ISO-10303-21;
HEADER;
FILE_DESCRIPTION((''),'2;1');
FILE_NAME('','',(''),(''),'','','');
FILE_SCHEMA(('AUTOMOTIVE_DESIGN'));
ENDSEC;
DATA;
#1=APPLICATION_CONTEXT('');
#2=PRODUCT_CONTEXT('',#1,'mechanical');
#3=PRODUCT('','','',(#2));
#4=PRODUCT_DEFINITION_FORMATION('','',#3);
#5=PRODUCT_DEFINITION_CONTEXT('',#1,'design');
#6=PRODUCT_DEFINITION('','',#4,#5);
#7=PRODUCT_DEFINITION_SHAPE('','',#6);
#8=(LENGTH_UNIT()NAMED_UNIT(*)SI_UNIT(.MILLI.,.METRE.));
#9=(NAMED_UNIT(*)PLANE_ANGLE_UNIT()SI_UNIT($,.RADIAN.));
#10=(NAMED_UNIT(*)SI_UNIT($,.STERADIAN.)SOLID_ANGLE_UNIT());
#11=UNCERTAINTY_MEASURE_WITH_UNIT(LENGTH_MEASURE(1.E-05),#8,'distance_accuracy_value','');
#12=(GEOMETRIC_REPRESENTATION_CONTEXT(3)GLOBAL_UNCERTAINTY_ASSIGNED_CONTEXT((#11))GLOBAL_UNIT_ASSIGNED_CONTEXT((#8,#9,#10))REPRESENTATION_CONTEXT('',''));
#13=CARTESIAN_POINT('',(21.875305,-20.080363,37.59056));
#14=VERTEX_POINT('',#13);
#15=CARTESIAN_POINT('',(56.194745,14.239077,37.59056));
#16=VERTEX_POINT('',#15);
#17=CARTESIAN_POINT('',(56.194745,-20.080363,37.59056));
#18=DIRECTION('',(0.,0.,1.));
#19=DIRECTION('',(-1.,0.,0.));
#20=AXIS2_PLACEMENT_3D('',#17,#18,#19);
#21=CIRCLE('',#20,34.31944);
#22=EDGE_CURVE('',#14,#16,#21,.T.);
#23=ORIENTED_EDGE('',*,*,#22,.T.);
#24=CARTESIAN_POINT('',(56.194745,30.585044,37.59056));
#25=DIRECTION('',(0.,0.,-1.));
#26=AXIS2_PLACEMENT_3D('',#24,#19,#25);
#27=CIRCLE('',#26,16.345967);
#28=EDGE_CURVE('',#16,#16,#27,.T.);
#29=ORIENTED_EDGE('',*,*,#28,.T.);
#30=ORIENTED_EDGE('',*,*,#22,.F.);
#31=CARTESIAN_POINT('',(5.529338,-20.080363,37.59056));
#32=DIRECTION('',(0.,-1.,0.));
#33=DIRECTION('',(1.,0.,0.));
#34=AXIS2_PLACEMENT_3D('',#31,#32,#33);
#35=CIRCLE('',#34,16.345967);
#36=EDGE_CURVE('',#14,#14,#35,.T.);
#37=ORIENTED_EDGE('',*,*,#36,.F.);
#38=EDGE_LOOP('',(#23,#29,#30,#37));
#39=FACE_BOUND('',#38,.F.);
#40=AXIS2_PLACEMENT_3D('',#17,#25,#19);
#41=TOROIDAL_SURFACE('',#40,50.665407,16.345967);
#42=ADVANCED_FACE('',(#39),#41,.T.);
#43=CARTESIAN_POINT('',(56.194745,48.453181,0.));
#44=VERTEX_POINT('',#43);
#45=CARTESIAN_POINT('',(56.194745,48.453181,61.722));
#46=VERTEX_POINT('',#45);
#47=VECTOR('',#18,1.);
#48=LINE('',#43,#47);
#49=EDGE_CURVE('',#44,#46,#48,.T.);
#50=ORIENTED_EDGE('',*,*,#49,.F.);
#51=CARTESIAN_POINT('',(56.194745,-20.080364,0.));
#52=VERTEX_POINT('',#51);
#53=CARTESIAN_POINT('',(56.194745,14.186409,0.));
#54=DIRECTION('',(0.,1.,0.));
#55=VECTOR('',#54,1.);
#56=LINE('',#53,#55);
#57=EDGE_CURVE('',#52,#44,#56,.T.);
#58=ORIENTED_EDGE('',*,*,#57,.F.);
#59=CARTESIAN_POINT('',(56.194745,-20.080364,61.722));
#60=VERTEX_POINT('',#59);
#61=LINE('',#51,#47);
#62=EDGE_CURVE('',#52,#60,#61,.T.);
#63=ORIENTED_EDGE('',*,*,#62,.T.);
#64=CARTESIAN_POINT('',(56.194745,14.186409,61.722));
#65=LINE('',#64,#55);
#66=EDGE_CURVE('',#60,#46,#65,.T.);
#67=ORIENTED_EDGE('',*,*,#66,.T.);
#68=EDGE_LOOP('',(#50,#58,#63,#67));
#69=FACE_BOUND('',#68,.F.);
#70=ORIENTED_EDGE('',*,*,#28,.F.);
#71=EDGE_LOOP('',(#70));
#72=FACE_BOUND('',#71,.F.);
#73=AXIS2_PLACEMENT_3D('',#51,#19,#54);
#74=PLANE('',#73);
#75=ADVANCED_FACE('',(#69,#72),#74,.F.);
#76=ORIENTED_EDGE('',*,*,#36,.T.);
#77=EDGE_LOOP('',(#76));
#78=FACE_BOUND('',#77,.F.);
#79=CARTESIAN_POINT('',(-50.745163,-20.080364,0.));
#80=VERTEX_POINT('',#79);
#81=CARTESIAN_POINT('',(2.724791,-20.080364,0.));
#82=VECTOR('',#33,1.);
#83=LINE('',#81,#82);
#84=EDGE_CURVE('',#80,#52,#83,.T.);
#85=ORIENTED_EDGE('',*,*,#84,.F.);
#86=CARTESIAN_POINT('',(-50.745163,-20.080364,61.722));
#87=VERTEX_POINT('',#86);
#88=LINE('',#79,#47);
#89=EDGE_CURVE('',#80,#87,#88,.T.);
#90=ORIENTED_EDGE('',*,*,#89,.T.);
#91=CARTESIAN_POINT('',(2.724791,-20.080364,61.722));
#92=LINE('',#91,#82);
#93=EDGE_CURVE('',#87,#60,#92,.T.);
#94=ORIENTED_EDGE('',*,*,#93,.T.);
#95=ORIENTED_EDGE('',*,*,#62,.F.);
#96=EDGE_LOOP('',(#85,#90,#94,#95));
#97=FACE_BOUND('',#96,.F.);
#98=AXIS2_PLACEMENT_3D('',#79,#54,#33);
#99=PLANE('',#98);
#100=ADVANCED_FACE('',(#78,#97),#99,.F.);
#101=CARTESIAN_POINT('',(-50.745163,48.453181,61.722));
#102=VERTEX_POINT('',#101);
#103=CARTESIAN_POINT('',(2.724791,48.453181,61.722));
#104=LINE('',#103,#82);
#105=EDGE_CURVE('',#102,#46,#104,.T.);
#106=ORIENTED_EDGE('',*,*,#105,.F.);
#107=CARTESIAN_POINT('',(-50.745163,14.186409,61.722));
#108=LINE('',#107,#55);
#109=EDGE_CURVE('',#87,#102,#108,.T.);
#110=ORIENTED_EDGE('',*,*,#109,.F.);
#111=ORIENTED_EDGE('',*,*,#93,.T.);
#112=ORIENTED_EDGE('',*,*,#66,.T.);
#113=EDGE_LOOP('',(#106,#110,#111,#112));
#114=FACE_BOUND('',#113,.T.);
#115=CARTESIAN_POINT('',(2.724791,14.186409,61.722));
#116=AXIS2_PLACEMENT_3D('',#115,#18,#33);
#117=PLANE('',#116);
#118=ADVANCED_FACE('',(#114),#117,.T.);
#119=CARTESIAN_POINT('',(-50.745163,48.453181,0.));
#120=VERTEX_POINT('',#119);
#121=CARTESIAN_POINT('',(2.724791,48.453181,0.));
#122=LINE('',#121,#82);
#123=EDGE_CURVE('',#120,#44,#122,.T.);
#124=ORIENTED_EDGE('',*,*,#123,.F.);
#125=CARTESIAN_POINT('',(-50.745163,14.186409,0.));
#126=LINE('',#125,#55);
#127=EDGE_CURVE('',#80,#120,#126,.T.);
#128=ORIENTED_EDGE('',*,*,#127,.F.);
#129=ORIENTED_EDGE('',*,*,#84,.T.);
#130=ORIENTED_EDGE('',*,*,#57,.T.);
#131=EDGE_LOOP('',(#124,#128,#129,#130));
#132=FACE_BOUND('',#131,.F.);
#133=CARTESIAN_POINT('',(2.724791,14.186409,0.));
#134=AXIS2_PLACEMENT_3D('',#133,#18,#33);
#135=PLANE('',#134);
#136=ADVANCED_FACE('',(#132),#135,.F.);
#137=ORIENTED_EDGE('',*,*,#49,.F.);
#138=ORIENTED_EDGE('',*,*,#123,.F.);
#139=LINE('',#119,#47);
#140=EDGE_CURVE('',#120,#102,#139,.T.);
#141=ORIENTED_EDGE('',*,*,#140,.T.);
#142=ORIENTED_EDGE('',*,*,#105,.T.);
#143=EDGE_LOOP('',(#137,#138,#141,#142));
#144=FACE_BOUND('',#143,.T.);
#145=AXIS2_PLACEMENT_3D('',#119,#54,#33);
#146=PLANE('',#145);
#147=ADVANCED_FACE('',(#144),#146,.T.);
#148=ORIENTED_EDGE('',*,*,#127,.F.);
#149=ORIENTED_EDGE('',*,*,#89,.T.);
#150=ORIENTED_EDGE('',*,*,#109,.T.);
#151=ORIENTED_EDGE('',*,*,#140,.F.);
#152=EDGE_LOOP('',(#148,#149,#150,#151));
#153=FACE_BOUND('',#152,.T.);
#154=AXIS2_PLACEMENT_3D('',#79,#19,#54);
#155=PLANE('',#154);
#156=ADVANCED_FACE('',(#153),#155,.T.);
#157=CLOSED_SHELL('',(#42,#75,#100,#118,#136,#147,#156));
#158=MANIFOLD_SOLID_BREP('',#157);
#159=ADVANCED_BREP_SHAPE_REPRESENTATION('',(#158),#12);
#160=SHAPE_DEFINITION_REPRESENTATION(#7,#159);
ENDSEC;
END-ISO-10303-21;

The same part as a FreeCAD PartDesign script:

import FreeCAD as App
import Part
import Sketcher
Q = App.Units.Quantity


def add_polygon(sketch, points):
    """Adds a closed chain of lines whose ends are joined by coincident constraints."""
    first, n = sketch.GeometryCount, len(points)
    for a, b in zip(points, points[1:] + points[:1]):
        sketch.addGeometry(Part.LineSegment(App.Vector(*a, 0), App.Vector(*b, 0)), False)
    for i in range(n):
        sketch.addConstraint(Sketcher.Constraint("Coincident", first + i, 2, first + (i + 1) % n, 1))

doc = App.newDocument("Part")
body = doc.addObject("PartDesign::Body", "Body")

sketch1 = doc.addObject("Sketcher::SketchObject", "Sketch")
body.addObject(sketch1)
sketch1.AttachmentSupport = (doc.XY_Plane, [""])
sketch1.MapMode = "FlatFace"
add_polygon(sketch1, [(-50.745163, 48.453181), (-50.745163, -20.080364), (56.194745, -20.080364), (56.194745, 48.453181)])
sketch1.addConstraint([
    Sketcher.Constraint("Vertical", 0),
    Sketcher.Constraint("Horizontal", 1),
    Sketcher.Constraint("Vertical", 2),
    Sketcher.Constraint("Horizontal", 3),
    Sketcher.Constraint("DistanceX", 1, 1, 1, 2, 106.939908),
    Sketcher.Constraint("DistanceY", 0, 2, 0, 1, 68.533545),
    Sketcher.Constraint("DistanceY", -1, 1, 2, 2, 48.453181),
    Sketcher.Constraint("DistanceX", 0, 2, -1, 1, 50.745163),
])
pad1 = doc.addObject("PartDesign::Pad", "Pad")
body.addObject(pad1)
pad1.Profile = sketch1
pad1.Length = Q("2.43 in")

sketch2 = doc.addObject("Sketcher::SketchObject", "Sketch001")
body.addObject(sketch2)
sketch2.AttachmentSupport = (doc.XZ_Plane, [""])
sketch2.MapMode = "FlatFace"
sketch2.AttachmentOffset = App.Placement(App.Vector(0, 0, 20.080363), App.Rotation())
sketch2.addGeometry(Part.Circle(App.Vector(5.529338, 37.59056, 0), App.Vector(0, 0, 1), 16.345967), False)
sketch2.addGeometry(Part.LineSegment(App.Vector(56.194745, 37.59056, 0), App.Vector(56.194745, 47.59056, 0)), True)
sketch2.addConstraint([
    Sketcher.Constraint("Vertical", 1),
    Sketcher.Constraint("Horizontal", 0, 3, 1, 1),
    Sketcher.Constraint("Diameter", 0, 32.691934),
    Sketcher.Constraint("DistanceY", 1, 1, 1, 2, 10.0),
    Sketcher.Constraint("DistanceY", -1, 1, 0, 3, 37.59056),
    Sketcher.Constraint("DistanceX", -1, 1, 0, 3, 5.529338),
    Sketcher.Constraint("DistanceX", -1, 1, 1, 1, 56.194745),
])
revolution = doc.addObject("PartDesign::Revolution", "Revolution")
body.addObject(revolution)
revolution.Profile = sketch2
revolution.ReferenceAxis = (sketch2, ["Axis0"])
revolution.Angle = 360

doc.recompute()
